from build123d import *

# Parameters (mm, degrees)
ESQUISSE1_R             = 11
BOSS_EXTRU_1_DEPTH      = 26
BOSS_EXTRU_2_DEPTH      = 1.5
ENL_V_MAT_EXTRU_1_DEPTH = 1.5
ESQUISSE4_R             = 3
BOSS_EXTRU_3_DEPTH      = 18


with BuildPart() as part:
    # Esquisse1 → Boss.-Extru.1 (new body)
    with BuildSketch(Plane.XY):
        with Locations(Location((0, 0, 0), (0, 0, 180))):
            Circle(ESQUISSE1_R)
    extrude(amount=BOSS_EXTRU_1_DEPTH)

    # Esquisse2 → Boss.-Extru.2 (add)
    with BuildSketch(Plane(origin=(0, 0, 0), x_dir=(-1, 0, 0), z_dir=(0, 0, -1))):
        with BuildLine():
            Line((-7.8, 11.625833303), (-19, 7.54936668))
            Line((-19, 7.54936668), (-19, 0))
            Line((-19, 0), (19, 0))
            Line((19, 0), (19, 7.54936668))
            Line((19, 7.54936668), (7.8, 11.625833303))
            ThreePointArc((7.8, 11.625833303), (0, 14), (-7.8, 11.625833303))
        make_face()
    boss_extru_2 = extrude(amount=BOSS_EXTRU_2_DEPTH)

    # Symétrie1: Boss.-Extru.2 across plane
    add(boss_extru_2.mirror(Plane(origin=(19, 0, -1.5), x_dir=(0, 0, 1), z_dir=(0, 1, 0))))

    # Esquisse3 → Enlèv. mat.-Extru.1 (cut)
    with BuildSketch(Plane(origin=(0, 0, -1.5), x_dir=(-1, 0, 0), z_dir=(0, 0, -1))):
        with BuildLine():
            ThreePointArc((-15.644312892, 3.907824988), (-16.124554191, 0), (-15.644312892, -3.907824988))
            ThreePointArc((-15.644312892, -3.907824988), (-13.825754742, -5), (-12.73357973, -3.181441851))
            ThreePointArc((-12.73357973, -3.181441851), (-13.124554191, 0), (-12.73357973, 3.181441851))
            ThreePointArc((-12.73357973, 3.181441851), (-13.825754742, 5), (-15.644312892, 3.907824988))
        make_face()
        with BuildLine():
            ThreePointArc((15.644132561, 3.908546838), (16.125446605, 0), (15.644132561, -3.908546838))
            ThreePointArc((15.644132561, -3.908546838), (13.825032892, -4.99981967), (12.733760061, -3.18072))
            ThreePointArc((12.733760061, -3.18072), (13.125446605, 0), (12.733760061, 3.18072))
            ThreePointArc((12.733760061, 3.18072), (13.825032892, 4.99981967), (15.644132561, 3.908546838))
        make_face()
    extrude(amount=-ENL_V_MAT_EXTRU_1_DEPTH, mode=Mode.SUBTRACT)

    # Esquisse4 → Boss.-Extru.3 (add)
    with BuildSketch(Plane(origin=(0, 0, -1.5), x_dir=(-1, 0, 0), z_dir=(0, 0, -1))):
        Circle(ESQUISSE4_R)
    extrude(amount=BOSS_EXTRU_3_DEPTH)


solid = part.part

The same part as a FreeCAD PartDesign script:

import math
import FreeCAD as App
import Part
import Sketcher
Q = App.Units.Quantity

doc = App.newDocument("Part")
body = doc.addObject("PartDesign::Body", "Body")

# Sketch on XY plane
sketch1 = doc.addObject("Sketcher::SketchObject", "Sketch")
body.addObject(sketch1)
sketch1.AttachmentSupport = (doc.XY_Plane, [""])
sketch1.MapMode = "FlatFace"
sketch1.addGeometry(Part.Circle(App.Vector(0, 0, 0), App.Vector(0, 0, 1), 11), False)
sketch1.addConstraint(Sketcher.Constraint("Coincident", 0, 3, -1, 1))
sketch1.addConstraint(Sketcher.Constraint("Diameter", 0, 22.0))
pad1 = doc.addObject("PartDesign::Pad", "Pad")
body.addObject(pad1)
pad1.Profile = sketch1
pad1.Length = 26

# Sketch on XY plane
sketch2 = doc.addObject("Sketcher::SketchObject", "Sketch001")
body.addObject(sketch2)
sketch2.AttachmentSupport = (doc.XY_Plane, [""])
sketch2.MapMode = "FlatFace"
sketch2.addGeometry(Part.LineSegment(App.Vector(8, 12, 0), App.Vector(19, 8, 0)), False)
sketch2.addGeometry(Part.LineSegment(App.Vector(19, 8, 0), App.Vector(19, 0, 0)), False)
sketch2.addGeometry(Part.LineSegment(App.Vector(19, 0, 0), App.Vector(-19, 0, 0)), False)
sketch2.addGeometry(Part.LineSegment(App.Vector(-19, 0, 0), App.Vector(-19, 8, 0)), False)
sketch2.addGeometry(Part.LineSegment(App.Vector(-19, 8, 0), App.Vector(-8, 12, 0)), False)
sketch2.addGeometry(Part.ArcOfCircle(Part.Circle(App.Vector(0, 0, 0), App.Vector(0, 0, 1), 14), math.radians(56), math.radians(124)), False)
sketch2.addConstraint(Sketcher.Constraint("Coincident", 0, 2, 1, 1))
sketch2.addConstraint(Sketcher.Constraint("Coincident", 1, 2, 2, 1))
sketch2.addConstraint(Sketcher.Constraint("Coincident", 2, 2, 3, 1))
sketch2.addConstraint(Sketcher.Constraint("Coincident", 3, 2, 4, 1))
sketch2.addConstraint(Sketcher.Constraint("Coincident", 4, 2, 5, 2))
sketch2.addConstraint(Sketcher.Constraint("Coincident", 5, 1, 0, 1))
sketch2.addConstraint(Sketcher.Constraint("Vertical", 1))
sketch2.addConstraint(Sketcher.Constraint("Horizontal", 2))
sketch2.addConstraint(Sketcher.Constraint("Vertical", 3))
sketch2.addConstraint(Sketcher.Constraint("Coincident", 5, 3, -1, 1))
sketch2.addConstraint(Sketcher.Constraint("Symmetric", 1, 2, 2, 2, -1, 1))
sketch2.addConstraint(Sketcher.Constraint("Horizontal", 0, 2, 3, 2))
sketch2.addConstraint(Sketcher.Constraint("Horizontal", 4, 2, 5, 1))
sketch2.addConstraint(Sketcher.Constraint("Radius", 5, 14.0))
sketch2.addConstraint(Sketcher.Constraint("DistanceX", 2, 2, 2, 1, 38.0))
sketch2.addConstraint(Sketcher.Constraint("Angle", 0, Q("-20 deg")))
sketch2.addConstraint(Sketcher.Constraint("DistanceX", 4, 2, -1, 1, 7.8))
pad2 = doc.addObject("PartDesign::Pad", "Pad001")
body.addObject(pad2)
pad2.Profile = sketch2
pad2.Length = 1.5
pad2.Reversed = True
doc.recompute()

mirrored = doc.addObject("PartDesign::Mirrored", "Mirrored")
body.addObject(mirrored)
mirrored.Originals = [pad2]
mirrored.MirrorPlane = (doc.XZ_Plane, [""])
body.Tip = mirrored

# Sketch on XY plane
sketch3 = doc.addObject("Sketcher::SketchObject", "Sketch002")
body.addObject(sketch3)
sketch3.AttachmentSupport = (doc.XY_Plane, [""])
sketch3.MapMode = "FlatFace"
sketch3.AttachmentOffset = App.Placement(App.Vector(0, 0, -1.5), App.Rotation())
sketch3.addGeometry(Part.ArcOfCircle(Part.Circle(App.Vector(0, 0, 0), App.Vector(0, 0, 1), 16.1), math.radians(-14), math.radians(14)), False)
sketch3.addGeometry(Part.ArcOfCircle(Part.Circle(App.Vector(14.2, -3.5, 0), App.Vector(0, 0, 1), 1.5), math.radians(166), math.radians(346)), False)
sketch3.addGeometry(Part.ArcOfCircle(Part.Circle(App.Vector(0, 0, 0), App.Vector(0, 0, 1), 13.1), math.radians(-14), math.radians(14)), False)
sketch3.addGeometry(Part.ArcOfCircle(Part.Circle(App.Vector(14.2, 3.5, 0), App.Vector(0, 0, 1), 1.5), math.radians(14), math.radians(194)), False)
sketch3.addGeometry(Part.ArcOfCircle(Part.Circle(App.Vector(0, 0, 0), App.Vector(0, 0, 1), 16.1), math.radians(166), math.radians(194)), False)
sketch3.addGeometry(Part.ArcOfCircle(Part.Circle(App.Vector(-14.2, 3.5, 0), App.Vector(0, 0, 1), 1.5), math.radians(-14), math.radians(166)), False)
sketch3.addGeometry(Part.ArcOfCircle(Part.Circle(App.Vector(0, 0, 0), App.Vector(0, 0, 1), 13.1), math.radians(166), math.radians(194)), False)
sketch3.addGeometry(Part.ArcOfCircle(Part.Circle(App.Vector(-14.2, -3.5, 0), App.Vector(0, 0, 1), 1.5), math.radians(-166), math.radians(14)), False)
sketch3.addConstraint(Sketcher.Constraint("Tangent", 0, 1, 1, 2))
sketch3.addConstraint(Sketcher.Constraint("Tangent", 1, 1, 2, 1))
sketch3.addConstraint(Sketcher.Constraint("Tangent", 2, 2, 3, 2))
sketch3.addConstraint(Sketcher.Constraint("Tangent", 3, 1, 0, 2))
sketch3.addConstraint(Sketcher.Constraint("Tangent", 4, 1, 5, 2))
sketch3.addConstraint(Sketcher.Constraint("Tangent", 5, 1, 6, 1))
sketch3.addConstraint(Sketcher.Constraint("Tangent", 6, 2, 7, 2))
sketch3.addConstraint(Sketcher.Constraint("Tangent", 7, 1, 4, 2))
sketch3.addConstraint(Sketcher.Constraint("Coincident", 2, 3, 0, 3))
sketch3.addConstraint(Sketcher.Constraint("Coincident", 4, 3, 0, 3))
sketch3.addConstraint(Sketcher.Constraint("Coincident", 6, 3, 0, 3))
sketch3.addConstraint(Sketcher.Constraint("Equal", 3, 5))
sketch3.addConstraint(Sketcher.Constraint("Symmetric", 1, 3, 5, 3, -1, 1))
sketch3.addConstraint(Sketcher.Constraint("Symmetric", 3, 3, 7, 3, -1, 1))
sketch3.addConstraint(Sketcher.Constraint("Horizontal", 3, 3, 5, 3))
sketch3.addConstraint(Sketcher.Constraint("Radius", 1, 1.5))
sketch3.addConstraint(Sketcher.Constraint("Radius", 0, 16.13952))
sketch3.addConstraint(Sketcher.Constraint("Radius", 4, 16.110481))
sketch3.addConstraint(Sketcher.Constraint("DistanceX", -1, 1, 1, 1, 12.73358))
pocket1 = doc.addObject("PartDesign::Pocket", "Pocket")
body.addObject(pocket1)
pocket1.Profile = sketch3
pocket1.Length = 1.5
pocket1.Reversed = True

# Sketch on XY plane
sketch4 = doc.addObject("Sketcher::SketchObject", "Sketch003")
body.addObject(sketch4)
sketch4.AttachmentSupport = (doc.XY_Plane, [""])
sketch4.MapMode = "FlatFace"
sketch4.AttachmentOffset = App.Placement(App.Vector(0, 0, -1.5), App.Rotation())
sketch4.addGeometry(Part.Circle(App.Vector(0, 0, 0), App.Vector(0, 0, 1), 3), False)
sketch4.addConstraint(Sketcher.Constraint("Coincident", 0, 3, -1, 1))
sketch4.addConstraint(Sketcher.Constraint("Diameter", 0, 6.0))
pad3 = doc.addObject("PartDesign::Pad", "Pad002")
body.addObject(pad3)
pad3.Profile = sketch4
pad3.Length = 18
pad3.Reversed = True

doc.recompute()
